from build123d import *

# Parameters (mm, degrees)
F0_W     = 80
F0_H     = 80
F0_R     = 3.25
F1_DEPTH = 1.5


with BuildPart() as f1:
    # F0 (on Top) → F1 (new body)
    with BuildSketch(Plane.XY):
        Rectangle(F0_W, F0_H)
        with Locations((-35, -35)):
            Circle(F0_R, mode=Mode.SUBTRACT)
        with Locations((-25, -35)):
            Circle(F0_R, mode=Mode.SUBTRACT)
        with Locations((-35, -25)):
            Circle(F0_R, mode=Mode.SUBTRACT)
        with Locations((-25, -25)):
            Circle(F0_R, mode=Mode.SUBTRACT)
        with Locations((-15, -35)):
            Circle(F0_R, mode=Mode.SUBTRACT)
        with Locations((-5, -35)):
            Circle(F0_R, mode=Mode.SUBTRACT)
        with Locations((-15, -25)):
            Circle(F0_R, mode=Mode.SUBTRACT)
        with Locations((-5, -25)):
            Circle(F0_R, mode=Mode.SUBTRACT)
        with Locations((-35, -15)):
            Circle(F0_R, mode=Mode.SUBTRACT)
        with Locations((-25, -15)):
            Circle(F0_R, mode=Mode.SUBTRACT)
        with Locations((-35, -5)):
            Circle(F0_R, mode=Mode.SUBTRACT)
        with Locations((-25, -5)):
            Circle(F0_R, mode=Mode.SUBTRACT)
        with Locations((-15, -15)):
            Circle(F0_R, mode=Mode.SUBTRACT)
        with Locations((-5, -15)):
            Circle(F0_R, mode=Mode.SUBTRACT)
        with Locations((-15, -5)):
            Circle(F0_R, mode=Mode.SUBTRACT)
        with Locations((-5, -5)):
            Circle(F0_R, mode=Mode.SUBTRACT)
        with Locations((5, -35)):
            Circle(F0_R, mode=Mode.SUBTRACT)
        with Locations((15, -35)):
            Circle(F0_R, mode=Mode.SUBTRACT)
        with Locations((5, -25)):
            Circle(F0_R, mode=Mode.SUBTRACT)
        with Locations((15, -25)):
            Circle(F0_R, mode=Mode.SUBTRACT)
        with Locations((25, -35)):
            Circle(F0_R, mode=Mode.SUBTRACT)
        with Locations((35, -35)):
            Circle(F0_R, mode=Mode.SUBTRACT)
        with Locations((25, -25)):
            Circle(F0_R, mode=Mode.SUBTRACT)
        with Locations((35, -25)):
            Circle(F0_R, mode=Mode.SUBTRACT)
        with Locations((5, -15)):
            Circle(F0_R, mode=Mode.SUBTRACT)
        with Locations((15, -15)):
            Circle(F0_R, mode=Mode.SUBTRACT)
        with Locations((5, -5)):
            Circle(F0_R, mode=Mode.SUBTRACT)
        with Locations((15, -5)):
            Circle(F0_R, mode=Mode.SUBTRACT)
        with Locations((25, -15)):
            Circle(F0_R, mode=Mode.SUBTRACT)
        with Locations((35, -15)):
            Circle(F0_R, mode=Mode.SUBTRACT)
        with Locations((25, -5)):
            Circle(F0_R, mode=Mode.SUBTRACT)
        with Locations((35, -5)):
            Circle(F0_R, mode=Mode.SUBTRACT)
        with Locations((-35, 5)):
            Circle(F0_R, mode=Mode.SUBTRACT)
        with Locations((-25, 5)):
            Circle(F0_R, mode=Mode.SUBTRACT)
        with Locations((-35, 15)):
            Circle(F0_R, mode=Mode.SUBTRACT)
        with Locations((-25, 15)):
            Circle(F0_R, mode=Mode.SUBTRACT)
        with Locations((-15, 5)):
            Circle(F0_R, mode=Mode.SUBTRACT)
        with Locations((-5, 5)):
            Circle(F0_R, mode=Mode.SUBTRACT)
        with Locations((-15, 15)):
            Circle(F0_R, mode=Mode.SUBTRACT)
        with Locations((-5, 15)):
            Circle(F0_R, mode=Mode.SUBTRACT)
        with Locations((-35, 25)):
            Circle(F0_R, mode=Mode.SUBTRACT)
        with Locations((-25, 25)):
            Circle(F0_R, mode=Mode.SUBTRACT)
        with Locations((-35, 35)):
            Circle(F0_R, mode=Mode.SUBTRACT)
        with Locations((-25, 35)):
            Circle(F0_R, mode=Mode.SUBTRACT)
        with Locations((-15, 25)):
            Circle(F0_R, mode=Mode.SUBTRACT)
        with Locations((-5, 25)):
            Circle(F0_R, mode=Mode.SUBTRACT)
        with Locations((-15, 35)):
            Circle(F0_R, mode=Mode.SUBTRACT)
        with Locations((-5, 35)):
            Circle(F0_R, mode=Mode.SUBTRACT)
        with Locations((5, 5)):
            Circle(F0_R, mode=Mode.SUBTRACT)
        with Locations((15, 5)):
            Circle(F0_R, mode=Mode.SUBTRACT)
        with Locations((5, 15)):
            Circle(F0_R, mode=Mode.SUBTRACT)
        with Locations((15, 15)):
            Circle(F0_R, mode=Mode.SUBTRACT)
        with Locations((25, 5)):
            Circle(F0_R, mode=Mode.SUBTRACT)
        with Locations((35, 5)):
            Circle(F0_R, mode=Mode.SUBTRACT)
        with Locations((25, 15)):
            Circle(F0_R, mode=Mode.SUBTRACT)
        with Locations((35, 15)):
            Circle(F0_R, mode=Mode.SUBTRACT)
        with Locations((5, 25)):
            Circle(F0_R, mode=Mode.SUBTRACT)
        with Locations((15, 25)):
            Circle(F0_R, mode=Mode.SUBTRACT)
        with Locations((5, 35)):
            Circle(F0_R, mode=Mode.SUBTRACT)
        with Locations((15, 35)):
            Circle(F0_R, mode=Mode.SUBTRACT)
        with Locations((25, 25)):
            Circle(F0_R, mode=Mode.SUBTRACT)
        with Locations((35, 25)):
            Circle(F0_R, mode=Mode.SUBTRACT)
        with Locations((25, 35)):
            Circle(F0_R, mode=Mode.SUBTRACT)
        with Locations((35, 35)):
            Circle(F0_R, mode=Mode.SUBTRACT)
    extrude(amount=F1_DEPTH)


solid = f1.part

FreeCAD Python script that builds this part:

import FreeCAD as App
import Part
import Sketcher
Q = App.Units.Quantity

doc = App.newDocument("Part")
body = doc.addObject("PartDesign::Body", "Body")

sketch1 = body.newObject("Sketcher::SketchObject", "Sketch")
sketch1.AttachmentSupport = (doc.getObject("XY_Plane"), [""])
sketch1.MapMode = "FlatFace"
sketch1.addGeometry(Part.LineSegment(App.Vector(-40, 40, 0), App.Vector(-40, -40, 0)), False)
sketch1.addGeometry(Part.LineSegment(App.Vector(-40, -40, 0), App.Vector(40, -40, 0)), False)
sketch1.addGeometry(Part.LineSegment(App.Vector(40, -40, 0), App.Vector(40, 40, 0)), False)
sketch1.addGeometry(Part.LineSegment(App.Vector(40, 40, 0), App.Vector(-40, 40, 0)), False)
sketch1.addGeometry(Part.Circle(App.Vector(-35, -35, 0), App.Vector(0, 0, 1), 3.2), False)
sketch1.addGeometry(Part.Circle(App.Vector(-25, -35, 0), App.Vector(0, 0, 1), 3.2), False)
sketch1.addGeometry(Part.Circle(App.Vector(-35, -25, 0), App.Vector(0, 0, 1), 3.2), False)
sketch1.addGeometry(Part.Circle(App.Vector(-25, -25, 0), App.Vector(0, 0, 1), 3.2), False)
sketch1.addGeometry(Part.Circle(App.Vector(-15, -35, 0), App.Vector(0, 0, 1), 3.2), False)
sketch1.addGeometry(Part.Circle(App.Vector(-5, -35, 0), App.Vector(0, 0, 1), 3.2), False)
sketch1.addGeometry(Part.Circle(App.Vector(-15, -25, 0), App.Vector(0, 0, 1), 3.2), False)
sketch1.addGeometry(Part.Circle(App.Vector(-5, -25, 0), App.Vector(0, 0, 1), 3.2), False)
sketch1.addGeometry(Part.Circle(App.Vector(-35, -15, 0), App.Vector(0, 0, 1), 3.2), False)
sketch1.addGeometry(Part.Circle(App.Vector(-25, -15, 0), App.Vector(0, 0, 1), 3.2), False)
sketch1.addGeometry(Part.Circle(App.Vector(-35, -5, 0), App.Vector(0, 0, 1), 3.2), False)
sketch1.addGeometry(Part.Circle(App.Vector(-25, -5, 0), App.Vector(0, 0, 1), 3.2), False)
sketch1.addGeometry(Part.Circle(App.Vector(-15, -15, 0), App.Vector(0, 0, 1), 3.2), False)
sketch1.addGeometry(Part.Circle(App.Vector(-5, -15, 0), App.Vector(0, 0, 1), 3.2), False)
sketch1.addGeometry(Part.Circle(App.Vector(-15, -5, 0), App.Vector(0, 0, 1), 3.2), False)
sketch1.addGeometry(Part.Circle(App.Vector(-5, -5, 0), App.Vector(0, 0, 1), 3.2), False)
sketch1.addGeometry(Part.Circle(App.Vector(5, -35, 0), App.Vector(0, 0, 1), 3.2), False)
sketch1.addGeometry(Part.Circle(App.Vector(15, -35, 0), App.Vector(0, 0, 1), 3.2), False)
sketch1.addGeometry(Part.Circle(App.Vector(5, -25, 0), App.Vector(0, 0, 1), 3.2), False)
sketch1.addGeometry(Part.Circle(App.Vector(15, -25, 0), App.Vector(0, 0, 1), 3.2), False)
sketch1.addGeometry(Part.Circle(App.Vector(25, -35, 0), App.Vector(0, 0, 1), 3.2), False)
sketch1.addGeometry(Part.Circle(App.Vector(35, -35, 0), App.Vector(0, 0, 1), 3.2), False)
sketch1.addGeometry(Part.Circle(App.Vector(25, -25, 0), App.Vector(0, 0, 1), 3.2), False)
sketch1.addGeometry(Part.Circle(App.Vector(35, -25, 0), App.Vector(0, 0, 1), 3.2), False)
sketch1.addGeometry(Part.Circle(App.Vector(5, -15, 0), App.Vector(0, 0, 1), 3.2), False)
sketch1.addGeometry(Part.Circle(App.Vector(15, -15, 0), App.Vector(0, 0, 1), 3.2), False)
sketch1.addGeometry(Part.Circle(App.Vector(5, -5, 0), App.Vector(0, 0, 1), 3.2), False)
sketch1.addGeometry(Part.Circle(App.Vector(15, -5, 0), App.Vector(0, 0, 1), 3.2), False)
sketch1.addGeometry(Part.Circle(App.Vector(25, -15, 0), App.Vector(0, 0, 1), 3.2), False)
sketch1.addGeometry(Part.Circle(App.Vector(35, -15, 0), App.Vector(0, 0, 1), 3.2), False)
sketch1.addGeometry(Part.Circle(App.Vector(25, -5, 0), App.Vector(0, 0, 1), 3.2), False)
sketch1.addGeometry(Part.Circle(App.Vector(35, -5, 0), App.Vector(0, 0, 1), 3.2), False)
sketch1.addGeometry(Part.Circle(App.Vector(-35, 5, 0), App.Vector(0, 0, 1), 3.2), False)
sketch1.addGeometry(Part.Circle(App.Vector(-25, 5, 0), App.Vector(0, 0, 1), 3.2), False)
sketch1.addGeometry(Part.Circle(App.Vector(-35, 15, 0), App.Vector(0, 0, 1), 3.2), False)
sketch1.addGeometry(Part.Circle(App.Vector(-25, 15, 0), App.Vector(0, 0, 1), 3.2), False)
sketch1.addGeometry(Part.Circle(App.Vector(-15, 5, 0), App.Vector(0, 0, 1), 3.2), False)
sketch1.addGeometry(Part.Circle(App.Vector(-5, 5, 0), App.Vector(0, 0, 1), 3.2), False)
sketch1.addGeometry(Part.Circle(App.Vector(-15, 15, 0), App.Vector(0, 0, 1), 3.2), False)
sketch1.addGeometry(Part.Circle(App.Vector(-5, 15, 0), App.Vector(0, 0, 1), 3.2), False)
sketch1.addGeometry(Part.Circle(App.Vector(-35, 25, 0), App.Vector(0, 0, 1), 3.2), False)
sketch1.addGeometry(Part.Circle(App.Vector(-25, 25, 0), App.Vector(0, 0, 1), 3.2), False)
sketch1.addGeometry(Part.Circle(App.Vector(-35, 35, 0), App.Vector(0, 0, 1), 3.2), False)
sketch1.addGeometry(Part.Circle(App.Vector(-25, 35, 0), App.Vector(0, 0, 1), 3.2), False)
sketch1.addGeometry(Part.Circle(App.Vector(-15, 25, 0), App.Vector(0, 0, 1), 3.2), False)
sketch1.addGeometry(Part.Circle(App.Vector(-5, 25, 0), App.Vector(0, 0, 1), 3.2), False)
sketch1.addGeometry(Part.Circle(App.Vector(-15, 35, 0), App.Vector(0, 0, 1), 3.2), False)
sketch1.addGeometry(Part.Circle(App.Vector(-5, 35, 0), App.Vector(0, 0, 1), 3.2), False)
sketch1.addGeometry(Part.Circle(App.Vector(5, 5, 0), App.Vector(0, 0, 1), 3.2), False)
sketch1.addGeometry(Part.Circle(App.Vector(15, 5, 0), App.Vector(0, 0, 1), 3.2), False)
sketch1.addGeometry(Part.Circle(App.Vector(5, 15, 0), App.Vector(0, 0, 1), 3.2), False)
sketch1.addGeometry(Part.Circle(App.Vector(15, 15, 0), App.Vector(0, 0, 1), 3.2), False)
sketch1.addGeometry(Part.Circle(App.Vector(25, 5, 0), App.Vector(0, 0, 1), 3.2), False)
sketch1.addGeometry(Part.Circle(App.Vector(35, 5, 0), App.Vector(0, 0, 1), 3.2), False)
sketch1.addGeometry(Part.Circle(App.Vector(25, 15, 0), App.Vector(0, 0, 1), 3.2), False)
sketch1.addGeometry(Part.Circle(App.Vector(35, 15, 0), App.Vector(0, 0, 1), 3.2), False)
sketch1.addGeometry(Part.Circle(App.Vector(5, 25, 0), App.Vector(0, 0, 1), 3.2), False)
sketch1.addGeometry(Part.Circle(App.Vector(15, 25, 0), App.Vector(0, 0, 1), 3.2), False)
sketch1.addGeometry(Part.Circle(App.Vector(5, 35, 0), App.Vector(0, 0, 1), 3.2), False)
sketch1.addGeometry(Part.Circle(App.Vector(15, 35, 0), App.Vector(0, 0, 1), 3.2), False)
sketch1.addGeometry(Part.Circle(App.Vector(25, 25, 0), App.Vector(0, 0, 1), 3.2), False)
sketch1.addGeometry(Part.Circle(App.Vector(35, 25, 0), App.Vector(0, 0, 1), 3.2), False)
sketch1.addGeometry(Part.Circle(App.Vector(25, 35, 0), App.Vector(0, 0, 1), 3.2), False)
sketch1.addGeometry(Part.Circle(App.Vector(35, 35, 0), App.Vector(0, 0, 1), 3.2), False)
sketch1.addConstraint(Sketcher.Constraint("Coincident", 0, 2, 1, 1))
sketch1.addConstraint(Sketcher.Constraint("Coincident", 1, 2, 2, 1))
sketch1.addConstraint(Sketcher.Constraint("Coincident", 2, 2, 3, 1))
sketch1.addConstraint(Sketcher.Constraint("Coincident", 3, 2, 0, 1))
sketch1.addConstraint(Sketcher.Constraint("Vertical", 0))
sketch1.addConstraint(Sketcher.Constraint("Horizontal", 1))
sketch1.addConstraint(Sketcher.Constraint("Vertical", 2))
sketch1.addConstraint(Sketcher.Constraint("Horizontal", 3))
sketch1.addConstraint(Sketcher.Constraint("Equal", 4, 5))
sketch1.addConstraint(Sketcher.Constraint("Equal", 5, 6))
sketch1.addConstraint(Sketcher.Constraint("Equal", 6, 7))
sketch1.addConstraint(Sketcher.Constraint("Equal", 7, 8))
sketch1.addConstraint(Sketcher.Constraint("Equal", 8, 9))
sketch1.addConstraint(Sketcher.Constraint("Equal", 9, 10))
sketch1.addConstraint(Sketcher.Constraint("Equal", 10, 11))
sketch1.addConstraint(Sketcher.Constraint("Equal", 11, 12))
sketch1.addConstraint(Sketcher.Constraint("Equal", 12, 13))
sketch1.addConstraint(Sketcher.Constraint("Equal", 13, 14))
sketch1.addConstraint(Sketcher.Constraint("Equal", 14, 15))
sketch1.addConstraint(Sketcher.Constraint("Equal", 15, 16))
sketch1.addConstraint(Sketcher.Constraint("Equal", 16, 17))
sketch1.addConstraint(Sketcher.Constraint("Equal", 17, 18))
sketch1.addConstraint(Sketcher.Constraint("Equal", 18, 19))
sketch1.addConstraint(Sketcher.Constraint("Equal", 19, 20))
sketch1.addConstraint(Sketcher.Constraint("Equal", 20, 21))
sketch1.addConstraint(Sketcher.Constraint("Equal", 21, 22))
sketch1.addConstraint(Sketcher.Constraint("Equal", 22, 23))
sketch1.addConstraint(Sketcher.Constraint("Equal", 23, 24))
sketch1.addConstraint(Sketcher.Constraint("Equal", 24, 25))
sketch1.addConstraint(Sketcher.Constraint("Equal", 25, 26))
sketch1.addConstraint(Sketcher.Constraint("Equal", 26, 27))
sketch1.addConstraint(Sketcher.Constraint("Equal", 27, 28))
sketch1.addConstraint(Sketcher.Constraint("Equal", 28, 29))
sketch1.addConstraint(Sketcher.Constraint("Equal", 29, 30))
sketch1.addConstraint(Sketcher.Constraint("Equal", 30, 31))
sketch1.addConstraint(Sketcher.Constraint("Equal", 31, 32))
sketch1.addConstraint(Sketcher.Constraint("Equal", 32, 33))
sketch1.addConstraint(Sketcher.Constraint("Equal", 33, 34))
sketch1.addConstraint(Sketcher.Constraint("Equal", 34, 35))
sketch1.addConstraint(Sketcher.Constraint("Equal", 35, 36))
sketch1.addConstraint(Sketcher.Constraint("Equal", 36, 37))
sketch1.addConstraint(Sketcher.Constraint("Equal", 37, 38))
sketch1.addConstraint(Sketcher.Constraint("Equal", 38, 39))
sketch1.addConstraint(Sketcher.Constraint("Equal", 39, 40))
sketch1.addConstraint(Sketcher.Constraint("Equal", 40, 41))
sketch1.addConstraint(Sketcher.Constraint("Equal", 41, 42))
sketch1.addConstraint(Sketcher.Constraint("Equal", 42, 43))
sketch1.addConstraint(Sketcher.Constraint("Equal", 43, 44))
sketch1.addConstraint(Sketcher.Constraint("Equal", 44, 45))
sketch1.addConstraint(Sketcher.Constraint("Equal", 45, 46))
sketch1.addConstraint(Sketcher.Constraint("Equal", 46, 47))
sketch1.addConstraint(Sketcher.Constraint("Equal", 47, 48))
sketch1.addConstraint(Sketcher.Constraint("Equal", 48, 49))
sketch1.addConstraint(Sketcher.Constraint("Equal", 49, 50))
sketch1.addConstraint(Sketcher.Constraint("Equal", 50, 51))
sketch1.addConstraint(Sketcher.Constraint("Equal", 51, 52))
sketch1.addConstraint(Sketcher.Constraint("Equal", 52, 53))
sketch1.addConstraint(Sketcher.Constraint("Equal", 53, 54))
sketch1.addConstraint(Sketcher.Constraint("Equal", 54, 55))
sketch1.addConstraint(Sketcher.Constraint("Equal", 55, 56))
sketch1.addConstraint(Sketcher.Constraint("Equal", 56, 57))
sketch1.addConstraint(Sketcher.Constraint("Equal", 57, 58))
sketch1.addConstraint(Sketcher.Constraint("Equal", 58, 59))
sketch1.addConstraint(Sketcher.Constraint("Equal", 59, 60))
sketch1.addConstraint(Sketcher.Constraint("Equal", 60, 61))
sketch1.addConstraint(Sketcher.Constraint("Equal", 61, 62))
sketch1.addConstraint(Sketcher.Constraint("Equal", 62, 63))
sketch1.addConstraint(Sketcher.Constraint("Equal", 63, 64))
sketch1.addConstraint(Sketcher.Constraint("Equal", 64, 65))
sketch1.addConstraint(Sketcher.Constraint("Equal", 65, 66))
sketch1.addConstraint(Sketcher.Constraint("Equal", 66, 67))
sketch1.addConstraint(Sketcher.Constraint("Symmetric", 35, 3, 36, 3, -1, 1))
sketch1.addConstraint(Sketcher.Constraint("Symmetric", 34, 3, 37, 3, -1, 1))
sketch1.addConstraint(Sketcher.Constraint("Symmetric", 33, 3, 38, 3, -1, 1))
sketch1.addConstraint(Sketcher.Constraint("Symmetric", 32, 3, 39, 3, -1, 1))
sketch1.addConstraint(Sketcher.Constraint("Symmetric", 31, 3, 40, 3, -1, 1))
sketch1.addConstraint(Sketcher.Constraint("Symmetric", 30, 3, 41, 3, -1, 1))
sketch1.addConstraint(Sketcher.Constraint("Symmetric", 29, 3, 42, 3, -1, 1))
sketch1.addConstraint(Sketcher.Constraint("Symmetric", 28, 3, 43, 3, -1, 1))
sketch1.addConstraint(Sketcher.Constraint("Symmetric", 27, 3, 44, 3, -1, 1))
sketch1.addConstraint(Sketcher.Constraint("Symmetric", 26, 3, 45, 3, -1, 1))
sketch1.addConstraint(Sketcher.Constraint("Symmetric", 25, 3, 46, 3, -1, 1))
sketch1.addConstraint(Sketcher.Constraint("Symmetric", 24, 3, 47, 3, -1, 1))
sketch1.addConstraint(Sketcher.Constraint("Symmetric", 23, 3, 48, 3, -1, 1))
sketch1.addConstraint(Sketcher.Constraint("Symmetric", 22, 3, 49, 3, -1, 1))
sketch1.addConstraint(Sketcher.Constraint("Symmetric", 21, 3, 50, 3, -1, 1))
sketch1.addConstraint(Sketcher.Constraint("Symmetric", 20, 3, 51, 3, -1, 1))
sketch1.addConstraint(Sketcher.Constraint("Symmetric", 19, 3, 52, 3, -1, 1))
sketch1.addConstraint(Sketcher.Constraint("Symmetric", 18, 3, 53, 3, -1, 1))
sketch1.addConstraint(Sketcher.Constraint("Symmetric", 17, 3, 54, 3, -1, 1))
sketch1.addConstraint(Sketcher.Constraint("Symmetric", 16, 3, 55, 3, -1, 1))
sketch1.addConstraint(Sketcher.Constraint("Symmetric", 15, 3, 56, 3, -1, 1))
sketch1.addConstraint(Sketcher.Constraint("Symmetric", 14, 3, 57, 3, -1, 1))
sketch1.addConstraint(Sketcher.Constraint("Symmetric", 13, 3, 58, 3, -1, 1))
sketch1.addConstraint(Sketcher.Constraint("Symmetric", 12, 3, 59, 3, -1, 1))
sketch1.addConstraint(Sketcher.Constraint("Symmetric", 11, 3, 60, 3, -1, 1))
sketch1.addConstraint(Sketcher.Constraint("Symmetric", 10, 3, 61, 3, -1, 1))
sketch1.addConstraint(Sketcher.Constraint("Symmetric", 9, 3, 62, 3, -1, 1))
sketch1.addConstraint(Sketcher.Constraint("Symmetric", 8, 3, 63, 3, -1, 1))
sketch1.addConstraint(Sketcher.Constraint("Symmetric", 7, 3, 64, 3, -1, 1))
sketch1.addConstraint(Sketcher.Constraint("Symmetric", 6, 3, 65, 3, -1, 1))
sketch1.addConstraint(Sketcher.Constraint("Symmetric", 5, 3, 66, 3, -1, 1))
sketch1.addConstraint(Sketcher.Constraint("Symmetric", 4, 3, 67, 3, -1, 1))
sketch1.addConstraint(Sketcher.Constraint("Symmetric", 0, 2, 2, 2, -1, 1))
sketch1.addConstraint(Sketcher.Constraint("Symmetric", 9, 3, 20, 3, -2))
sketch1.addConstraint(Sketcher.Constraint("Symmetric", 8, 3, 21, 3, -2))
sketch1.addConstraint(Sketcher.Constraint("Symmetric", 11, 3, 22, 3, -2))
sketch1.addConstraint(Sketcher.Constraint("Symmetric", 10, 3, 23, 3, -2))
sketch1.addConstraint(Sketcher.Constraint("Symmetric", 5, 3, 24, 3, -2))
sketch1.addConstraint(Sketcher.Constraint("Symmetric", 4, 3, 25, 3, -2))
sketch1.addConstraint(Sketcher.Constraint("Symmetric", 7, 3, 26, 3, -2))
sketch1.addConstraint(Sketcher.Constraint("Symmetric", 6, 3, 27, 3, -2))
sketch1.addConstraint(Sketcher.Constraint("Symmetric", 17, 3, 28, 3, -2))
sketch1.addConstraint(Sketcher.Constraint("Symmetric", 16, 3, 29, 3, -2))
sketch1.addConstraint(Sketcher.Constraint("Symmetric", 19, 3, 30, 3, -2))
sketch1.addConstraint(Sketcher.Constraint("Symmetric", 18, 3, 31, 3, -2))
sketch1.addConstraint(Sketcher.Constraint("Symmetric", 13, 3, 32, 3, -2))
sketch1.addConstraint(Sketcher.Constraint("Symmetric", 12, 3, 33, 3, -2))
sketch1.addConstraint(Sketcher.Constraint("Symmetric", 15, 3, 34, 3, -2))
sketch1.addConstraint(Sketcher.Constraint("Symmetric", 14, 3, 35, 3, -2))
sketch1.addConstraint(Sketcher.Constraint("Horizontal", 4, 3, 5, 3))
sketch1.addConstraint(Sketcher.Constraint("Horizontal", 6, 3, 7, 3))
sketch1.addConstraint(Sketcher.Constraint("Horizontal", 5, 3, 8, 3))
sketch1.addConstraint(Sketcher.Constraint("Horizontal", 8, 3, 9, 3))
sketch1.addConstraint(Sketcher.Constraint("Horizontal", 7, 3, 10, 3))
sketch1.addConstraint(Sketcher.Constraint("Horizontal", 10, 3, 11, 3))
sketch1.addConstraint(Sketcher.Constraint("Horizontal", 12, 3, 13, 3))
sketch1.addConstraint(Sketcher.Constraint("Horizontal", 14, 3, 15, 3))
sketch1.addConstraint(Sketcher.Constraint("Horizontal", 13, 3, 16, 3))
sketch1.addConstraint(Sketcher.Constraint("Horizontal", 16, 3, 17, 3))
sketch1.addConstraint(Sketcher.Constraint("Horizontal", 15, 3, 18, 3))
sketch1.addConstraint(Sketcher.Constraint("Horizontal", 18, 3, 19, 3))
sketch1.addConstraint(Sketcher.Constraint("Vertical", 4, 3, 6, 3))
sketch1.addConstraint(Sketcher.Constraint("Vertical", 5, 3, 7, 3))
sketch1.addConstraint(Sketcher.Constraint("Vertical", 8, 3, 10, 3))
sketch1.addConstraint(Sketcher.Constraint("Vertical", 9, 3, 11, 3))
sketch1.addConstraint(Sketcher.Constraint("Vertical", 6, 3, 12, 3))
sketch1.addConstraint(Sketcher.Constraint("Vertical", 7, 3, 13, 3))
sketch1.addConstraint(Sketcher.Constraint("Vertical", 12, 3, 14, 3))
sketch1.addConstraint(Sketcher.Constraint("Vertical", 13, 3, 15, 3))
sketch1.addConstraint(Sketcher.Constraint("Vertical", 10, 3, 16, 3))
sketch1.addConstraint(Sketcher.Constraint("Vertical", 11, 3, 17, 3))
sketch1.addConstraint(Sketcher.Constraint("Vertical", 16, 3, 18, 3))
sketch1.addConstraint(Sketcher.Constraint("Vertical", 17, 3, 19, 3))
sketch1.addConstraint(Sketcher.Constraint("Equal", 3, 0))
sketch1.addConstraint(Sketcher.Constraint("Diameter", 4, Q("6.5 mm")))
sketch1.addConstraint(Sketcher.Constraint("DistanceX", 1, 1, 1, 2, Q("80 mm")))
sketch1.addConstraint(Sketcher.Constraint("DistanceX", 4, 3, -1, 1, Q("35 mm")))
sketch1.addConstraint(Sketcher.Constraint("DistanceY", 4, 3, -1, 1, Q("35 mm")))
sketch1.addConstraint(Sketcher.Constraint("DistanceX", 5, 3, -1, 1, Q("25 mm")))
sketch1.addConstraint(Sketcher.Constraint("DistanceY", 6, 3, -1, 1, Q("25 mm")))
sketch1.addConstraint(Sketcher.Constraint("DistanceX", 8, 3, -1, 1, Q("15 mm")))
sketch1.addConstraint(Sketcher.Constraint("DistanceX", 9, 3, -1, 1, Q("5 mm")))
sketch1.addConstraint(Sketcher.Constraint("DistanceY", 12, 3, -1, 1, Q("15 mm")))
sketch1.addConstraint(Sketcher.Constraint("DistanceY", 14, 3, -1, 1, Q("5 mm")))
pad1 = body.newObject("PartDesign::Pad", "Pad")
pad1.Profile = sketch1
pad1.Length = 1.5

doc.recompute()
